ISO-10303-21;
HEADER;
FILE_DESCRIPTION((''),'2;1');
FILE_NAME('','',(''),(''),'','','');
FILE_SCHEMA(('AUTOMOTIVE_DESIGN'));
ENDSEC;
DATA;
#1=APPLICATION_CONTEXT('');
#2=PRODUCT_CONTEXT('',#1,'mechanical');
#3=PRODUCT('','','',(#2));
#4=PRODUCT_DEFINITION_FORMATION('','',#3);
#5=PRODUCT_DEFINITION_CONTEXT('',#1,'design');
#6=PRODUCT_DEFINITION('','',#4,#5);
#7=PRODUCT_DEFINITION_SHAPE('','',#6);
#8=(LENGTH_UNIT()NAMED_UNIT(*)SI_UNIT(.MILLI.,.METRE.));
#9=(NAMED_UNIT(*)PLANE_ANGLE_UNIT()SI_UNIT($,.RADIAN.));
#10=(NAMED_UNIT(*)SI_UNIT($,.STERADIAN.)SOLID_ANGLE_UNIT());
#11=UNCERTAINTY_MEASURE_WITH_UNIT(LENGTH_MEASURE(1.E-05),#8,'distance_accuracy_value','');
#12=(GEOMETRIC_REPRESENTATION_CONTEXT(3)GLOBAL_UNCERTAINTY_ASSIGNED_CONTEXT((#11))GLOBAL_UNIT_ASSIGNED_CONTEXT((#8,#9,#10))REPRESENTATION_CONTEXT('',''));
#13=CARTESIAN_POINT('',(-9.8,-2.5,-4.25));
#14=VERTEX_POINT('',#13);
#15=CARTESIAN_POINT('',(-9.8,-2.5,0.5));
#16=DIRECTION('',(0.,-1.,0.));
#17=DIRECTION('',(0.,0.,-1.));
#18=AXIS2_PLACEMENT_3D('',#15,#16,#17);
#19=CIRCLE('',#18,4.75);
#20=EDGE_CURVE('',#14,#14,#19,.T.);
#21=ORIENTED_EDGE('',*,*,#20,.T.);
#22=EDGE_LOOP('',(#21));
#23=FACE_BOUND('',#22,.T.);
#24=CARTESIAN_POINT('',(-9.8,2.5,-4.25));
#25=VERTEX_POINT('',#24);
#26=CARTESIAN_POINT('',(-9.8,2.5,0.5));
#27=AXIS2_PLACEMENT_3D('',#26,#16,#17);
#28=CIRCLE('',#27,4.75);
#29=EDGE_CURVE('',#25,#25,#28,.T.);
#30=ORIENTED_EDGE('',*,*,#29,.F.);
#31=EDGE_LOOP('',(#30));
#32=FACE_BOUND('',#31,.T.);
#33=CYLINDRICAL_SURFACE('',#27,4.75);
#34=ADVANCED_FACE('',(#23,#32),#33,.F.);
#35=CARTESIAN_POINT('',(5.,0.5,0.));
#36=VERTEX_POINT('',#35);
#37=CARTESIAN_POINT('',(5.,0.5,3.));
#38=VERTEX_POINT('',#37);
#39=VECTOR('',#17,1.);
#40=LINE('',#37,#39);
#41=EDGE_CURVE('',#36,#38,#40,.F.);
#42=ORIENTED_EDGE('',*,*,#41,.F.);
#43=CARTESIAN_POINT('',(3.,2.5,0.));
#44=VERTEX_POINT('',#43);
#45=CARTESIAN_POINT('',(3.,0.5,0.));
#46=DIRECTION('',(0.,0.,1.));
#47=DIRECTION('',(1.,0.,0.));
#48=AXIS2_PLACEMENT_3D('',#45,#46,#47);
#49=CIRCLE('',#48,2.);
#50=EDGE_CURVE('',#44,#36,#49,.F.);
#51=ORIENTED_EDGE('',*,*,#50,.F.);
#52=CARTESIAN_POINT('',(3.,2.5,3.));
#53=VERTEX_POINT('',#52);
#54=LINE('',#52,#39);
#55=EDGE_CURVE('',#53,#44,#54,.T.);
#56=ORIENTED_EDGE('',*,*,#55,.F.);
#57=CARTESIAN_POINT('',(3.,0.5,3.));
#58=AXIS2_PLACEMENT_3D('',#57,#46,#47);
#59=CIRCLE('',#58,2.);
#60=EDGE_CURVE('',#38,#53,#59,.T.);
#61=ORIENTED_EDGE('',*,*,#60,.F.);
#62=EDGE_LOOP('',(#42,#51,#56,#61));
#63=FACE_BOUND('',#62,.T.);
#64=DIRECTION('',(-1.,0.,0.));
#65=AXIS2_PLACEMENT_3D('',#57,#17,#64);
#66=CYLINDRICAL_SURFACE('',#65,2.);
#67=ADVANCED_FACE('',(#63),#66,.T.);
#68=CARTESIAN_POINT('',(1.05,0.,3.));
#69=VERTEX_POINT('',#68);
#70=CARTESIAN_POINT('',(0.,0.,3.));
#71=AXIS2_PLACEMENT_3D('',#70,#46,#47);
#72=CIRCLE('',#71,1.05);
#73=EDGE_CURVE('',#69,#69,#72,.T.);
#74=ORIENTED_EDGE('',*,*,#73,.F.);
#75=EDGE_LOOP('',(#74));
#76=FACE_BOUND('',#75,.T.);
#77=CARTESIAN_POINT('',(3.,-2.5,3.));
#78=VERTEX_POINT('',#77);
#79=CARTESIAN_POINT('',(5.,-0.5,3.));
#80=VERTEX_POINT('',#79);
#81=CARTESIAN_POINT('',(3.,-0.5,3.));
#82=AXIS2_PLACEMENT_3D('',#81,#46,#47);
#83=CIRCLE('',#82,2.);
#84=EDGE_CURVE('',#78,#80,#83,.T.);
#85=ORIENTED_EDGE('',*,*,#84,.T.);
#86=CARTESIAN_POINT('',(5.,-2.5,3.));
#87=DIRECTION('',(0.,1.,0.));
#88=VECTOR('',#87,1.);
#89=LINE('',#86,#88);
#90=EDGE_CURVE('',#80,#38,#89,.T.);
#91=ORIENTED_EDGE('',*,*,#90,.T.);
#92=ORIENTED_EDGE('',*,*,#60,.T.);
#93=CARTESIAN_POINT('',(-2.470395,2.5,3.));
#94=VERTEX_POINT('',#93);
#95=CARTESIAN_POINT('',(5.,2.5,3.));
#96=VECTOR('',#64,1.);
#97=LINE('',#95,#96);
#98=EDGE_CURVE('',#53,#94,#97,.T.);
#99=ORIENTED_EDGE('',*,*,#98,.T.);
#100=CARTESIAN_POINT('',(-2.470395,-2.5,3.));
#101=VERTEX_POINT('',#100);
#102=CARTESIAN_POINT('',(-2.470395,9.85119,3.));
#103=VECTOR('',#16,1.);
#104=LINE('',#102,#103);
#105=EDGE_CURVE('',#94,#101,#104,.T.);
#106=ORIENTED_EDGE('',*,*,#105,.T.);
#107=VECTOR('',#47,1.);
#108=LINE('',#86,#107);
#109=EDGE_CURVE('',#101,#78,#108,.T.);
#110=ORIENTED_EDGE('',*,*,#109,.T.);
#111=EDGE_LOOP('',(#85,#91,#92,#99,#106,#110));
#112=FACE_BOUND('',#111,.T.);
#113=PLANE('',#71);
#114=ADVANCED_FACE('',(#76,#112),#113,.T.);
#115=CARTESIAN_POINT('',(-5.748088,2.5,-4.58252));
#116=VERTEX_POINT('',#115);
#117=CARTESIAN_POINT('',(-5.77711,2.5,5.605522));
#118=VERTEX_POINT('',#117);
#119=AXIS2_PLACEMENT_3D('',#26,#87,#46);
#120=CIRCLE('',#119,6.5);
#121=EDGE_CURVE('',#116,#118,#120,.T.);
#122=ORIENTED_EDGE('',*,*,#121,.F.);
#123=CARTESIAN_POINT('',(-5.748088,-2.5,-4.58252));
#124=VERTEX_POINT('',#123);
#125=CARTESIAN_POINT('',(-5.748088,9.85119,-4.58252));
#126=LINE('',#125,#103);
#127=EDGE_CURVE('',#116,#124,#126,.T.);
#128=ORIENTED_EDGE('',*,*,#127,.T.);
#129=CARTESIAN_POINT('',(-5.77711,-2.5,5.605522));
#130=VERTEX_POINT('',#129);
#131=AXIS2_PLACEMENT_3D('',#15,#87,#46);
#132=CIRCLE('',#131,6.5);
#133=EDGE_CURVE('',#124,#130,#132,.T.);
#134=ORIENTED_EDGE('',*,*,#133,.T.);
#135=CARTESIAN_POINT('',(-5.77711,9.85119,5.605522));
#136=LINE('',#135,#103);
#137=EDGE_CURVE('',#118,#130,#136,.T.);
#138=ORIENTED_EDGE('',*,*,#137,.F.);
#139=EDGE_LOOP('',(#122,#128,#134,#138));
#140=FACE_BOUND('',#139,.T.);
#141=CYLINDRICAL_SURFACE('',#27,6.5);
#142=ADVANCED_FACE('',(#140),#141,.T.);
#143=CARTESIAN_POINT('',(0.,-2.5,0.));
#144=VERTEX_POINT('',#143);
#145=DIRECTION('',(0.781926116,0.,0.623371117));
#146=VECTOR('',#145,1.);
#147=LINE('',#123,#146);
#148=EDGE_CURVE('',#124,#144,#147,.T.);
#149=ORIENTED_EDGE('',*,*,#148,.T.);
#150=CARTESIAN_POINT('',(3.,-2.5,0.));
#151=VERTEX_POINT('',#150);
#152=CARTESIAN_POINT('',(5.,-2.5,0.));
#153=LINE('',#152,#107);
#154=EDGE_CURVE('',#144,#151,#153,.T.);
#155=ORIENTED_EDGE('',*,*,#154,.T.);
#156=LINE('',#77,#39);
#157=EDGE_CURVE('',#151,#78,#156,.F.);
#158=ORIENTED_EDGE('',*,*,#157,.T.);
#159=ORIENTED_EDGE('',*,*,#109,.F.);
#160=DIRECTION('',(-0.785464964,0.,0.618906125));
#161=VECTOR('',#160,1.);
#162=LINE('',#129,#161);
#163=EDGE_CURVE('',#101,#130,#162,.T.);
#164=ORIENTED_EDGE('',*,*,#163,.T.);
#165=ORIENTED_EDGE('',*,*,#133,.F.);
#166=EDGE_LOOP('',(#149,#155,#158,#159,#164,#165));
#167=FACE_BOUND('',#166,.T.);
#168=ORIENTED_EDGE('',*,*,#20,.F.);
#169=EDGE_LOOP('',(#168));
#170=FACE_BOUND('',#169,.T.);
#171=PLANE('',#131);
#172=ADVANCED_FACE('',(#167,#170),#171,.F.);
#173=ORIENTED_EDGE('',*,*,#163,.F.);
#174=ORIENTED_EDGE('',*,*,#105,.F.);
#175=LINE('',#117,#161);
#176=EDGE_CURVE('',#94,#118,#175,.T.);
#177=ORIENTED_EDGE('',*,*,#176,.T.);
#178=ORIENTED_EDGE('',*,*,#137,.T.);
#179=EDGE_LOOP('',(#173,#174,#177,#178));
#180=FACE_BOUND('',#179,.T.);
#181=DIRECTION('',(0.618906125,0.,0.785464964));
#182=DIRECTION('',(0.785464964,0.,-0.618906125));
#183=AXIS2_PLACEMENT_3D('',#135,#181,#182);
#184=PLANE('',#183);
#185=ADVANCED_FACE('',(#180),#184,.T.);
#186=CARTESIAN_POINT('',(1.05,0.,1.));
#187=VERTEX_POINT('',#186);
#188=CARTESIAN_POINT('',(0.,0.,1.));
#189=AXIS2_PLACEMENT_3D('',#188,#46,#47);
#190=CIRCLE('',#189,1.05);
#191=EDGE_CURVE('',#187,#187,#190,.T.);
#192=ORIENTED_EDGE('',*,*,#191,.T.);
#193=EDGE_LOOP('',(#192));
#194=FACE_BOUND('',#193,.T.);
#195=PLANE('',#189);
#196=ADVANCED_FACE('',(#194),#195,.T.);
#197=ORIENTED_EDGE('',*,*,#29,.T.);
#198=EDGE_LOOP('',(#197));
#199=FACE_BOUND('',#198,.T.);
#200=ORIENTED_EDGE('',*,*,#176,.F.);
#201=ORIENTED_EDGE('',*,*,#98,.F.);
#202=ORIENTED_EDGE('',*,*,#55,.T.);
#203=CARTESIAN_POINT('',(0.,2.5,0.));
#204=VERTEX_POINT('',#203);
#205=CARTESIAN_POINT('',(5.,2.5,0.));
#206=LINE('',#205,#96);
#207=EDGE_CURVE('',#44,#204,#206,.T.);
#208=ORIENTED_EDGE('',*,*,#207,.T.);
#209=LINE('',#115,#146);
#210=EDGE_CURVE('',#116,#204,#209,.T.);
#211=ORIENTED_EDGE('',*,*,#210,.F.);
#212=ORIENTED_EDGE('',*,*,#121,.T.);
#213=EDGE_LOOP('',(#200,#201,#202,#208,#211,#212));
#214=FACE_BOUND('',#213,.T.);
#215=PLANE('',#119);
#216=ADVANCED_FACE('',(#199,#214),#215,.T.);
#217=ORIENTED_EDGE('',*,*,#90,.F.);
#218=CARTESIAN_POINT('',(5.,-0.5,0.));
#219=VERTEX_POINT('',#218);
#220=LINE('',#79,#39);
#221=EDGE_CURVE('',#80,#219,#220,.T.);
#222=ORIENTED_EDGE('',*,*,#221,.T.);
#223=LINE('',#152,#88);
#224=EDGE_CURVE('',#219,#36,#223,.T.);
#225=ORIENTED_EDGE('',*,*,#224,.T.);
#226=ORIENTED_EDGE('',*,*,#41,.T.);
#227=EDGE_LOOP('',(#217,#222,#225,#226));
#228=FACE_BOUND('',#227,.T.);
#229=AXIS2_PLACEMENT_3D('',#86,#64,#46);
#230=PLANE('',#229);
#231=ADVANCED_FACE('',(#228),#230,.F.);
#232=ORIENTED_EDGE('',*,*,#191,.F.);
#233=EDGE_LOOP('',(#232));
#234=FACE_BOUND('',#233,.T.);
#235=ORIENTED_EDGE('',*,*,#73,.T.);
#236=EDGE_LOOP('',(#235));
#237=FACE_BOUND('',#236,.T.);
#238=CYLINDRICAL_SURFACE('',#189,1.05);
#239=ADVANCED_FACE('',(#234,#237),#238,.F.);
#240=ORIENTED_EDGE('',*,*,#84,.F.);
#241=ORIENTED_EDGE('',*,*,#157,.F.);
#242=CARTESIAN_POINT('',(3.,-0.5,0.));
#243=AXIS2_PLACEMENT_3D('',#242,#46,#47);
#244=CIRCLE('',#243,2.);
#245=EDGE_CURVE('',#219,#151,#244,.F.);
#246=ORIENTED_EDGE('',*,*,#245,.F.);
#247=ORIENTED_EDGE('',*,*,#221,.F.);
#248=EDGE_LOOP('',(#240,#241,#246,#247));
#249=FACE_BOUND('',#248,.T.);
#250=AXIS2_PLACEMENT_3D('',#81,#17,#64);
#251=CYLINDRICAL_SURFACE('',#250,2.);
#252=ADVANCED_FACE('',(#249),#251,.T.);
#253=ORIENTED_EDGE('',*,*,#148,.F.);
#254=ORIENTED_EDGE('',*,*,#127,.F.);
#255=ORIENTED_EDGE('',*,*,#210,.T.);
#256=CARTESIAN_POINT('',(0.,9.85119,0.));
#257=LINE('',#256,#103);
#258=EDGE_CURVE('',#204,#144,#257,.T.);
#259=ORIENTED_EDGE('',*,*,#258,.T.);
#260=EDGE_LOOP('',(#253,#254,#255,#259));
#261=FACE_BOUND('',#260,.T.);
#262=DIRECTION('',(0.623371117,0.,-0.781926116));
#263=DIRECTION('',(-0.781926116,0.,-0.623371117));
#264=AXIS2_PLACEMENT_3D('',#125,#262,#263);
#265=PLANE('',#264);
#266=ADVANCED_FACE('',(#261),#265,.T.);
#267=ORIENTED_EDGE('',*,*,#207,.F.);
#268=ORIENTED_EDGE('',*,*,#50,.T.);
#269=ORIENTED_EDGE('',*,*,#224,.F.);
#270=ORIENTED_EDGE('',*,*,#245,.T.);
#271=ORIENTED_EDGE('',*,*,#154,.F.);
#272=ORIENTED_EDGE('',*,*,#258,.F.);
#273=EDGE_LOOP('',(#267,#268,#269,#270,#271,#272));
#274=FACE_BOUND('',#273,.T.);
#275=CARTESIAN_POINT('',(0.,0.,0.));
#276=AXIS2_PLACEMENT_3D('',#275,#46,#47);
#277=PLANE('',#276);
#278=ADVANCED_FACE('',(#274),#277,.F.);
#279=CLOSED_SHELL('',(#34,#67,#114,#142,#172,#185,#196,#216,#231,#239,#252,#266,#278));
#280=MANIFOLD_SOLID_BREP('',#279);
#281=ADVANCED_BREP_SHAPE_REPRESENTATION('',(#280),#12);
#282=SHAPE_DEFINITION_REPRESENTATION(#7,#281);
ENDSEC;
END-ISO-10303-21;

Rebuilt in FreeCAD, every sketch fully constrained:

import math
import FreeCAD as App
import Part
import Sketcher
from FreeCAD import Vector


def edges_at(feature, points):
    """Names of the edges that pass closest to the given points."""
    edges = feature.Shape.Edges
    near = lambda p: min(range(len(edges)), key=lambda i: edges[i].distToShape(Part.Vertex(*p))[0])
    return sorted({f"Edge{near(p) + 1}" for p in points})

doc = App.newDocument("Part")
body = doc.addObject("PartDesign::Body", "Body")

# Sketch on XY plane
sketch1 = body.newObject("Sketcher::SketchObject", "Sketch")
sketch1.AttachmentSupport = (doc.getObject("XY_Plane"), [""])
sketch1.MapMode = "FlatFace"
sketch1.addGeometry(Part.LineSegment(Vector(-5, 2, 0), Vector(-5, -2, 0)), False)
sketch1.addGeometry(Part.LineSegment(Vector(-5, -2, 0), Vector(5, -2, 0)), False)
sketch1.addGeometry(Part.LineSegment(Vector(5, -2, 0), Vector(5, 2, 0)), False)
sketch1.addGeometry(Part.LineSegment(Vector(5, 2, 0), Vector(-5, 2, 0)), False)
sketch1.addConstraint(Sketcher.Constraint("Coincident", 0, 2, 1, 1))
sketch1.addConstraint(Sketcher.Constraint("Coincident", 1, 2, 2, 1))
sketch1.addConstraint(Sketcher.Constraint("Coincident", 2, 2, 3, 1))
sketch1.addConstraint(Sketcher.Constraint("Coincident", 3, 2, 0, 1))
sketch1.addConstraint(Sketcher.Constraint("Vertical", 0))
sketch1.addConstraint(Sketcher.Constraint("Horizontal", 1))
sketch1.addConstraint(Sketcher.Constraint("Vertical", 2))
sketch1.addConstraint(Sketcher.Constraint("Horizontal", 3))
sketch1.addConstraint(Sketcher.Constraint("Symmetric", 0, 2, 2, 2, -1, 1))
sketch1.addConstraint(Sketcher.Constraint("DistanceX", 1, 1, 1, 2, 10.0))
sketch1.addConstraint(Sketcher.Constraint("DistanceY", 0, 2, 0, 1, 5.0))
pad1 = body.newObject("PartDesign::Pad", "Pad")
pad1.Profile = sketch1
pad1.Length = 3
doc.recompute()

fillet = body.newObject("PartDesign::Fillet", "Fillet")
fillet.Base = (pad1, edges_at(pad1, [(5, 2.5, 1.5), (5, -2.5, 1.5)]))
fillet.Radius = 2

# Sketch on XY plane
sketch2 = body.newObject("Sketcher::SketchObject", "Sketch001")
sketch2.AttachmentSupport = (doc.getObject("XY_Plane"), [""])
sketch2.MapMode = "FlatFace"
sketch2.AttachmentOffset = App.Placement(Vector(0, 0, 3), App.Rotation())
sketch2.addGeometry(Part.Circle(Vector(0, 0, 0), Vector(0, 0, 1), 1.1), False)
sketch2.addConstraint(Sketcher.Constraint("Coincident", 0, 3, -1, 1))
sketch2.addConstraint(Sketcher.Constraint("Diameter", 0, 2.1))
pocket1 = body.newObject("PartDesign::Pocket", "Pocket")
pocket1.Profile = sketch2
pocket1.Length = 2
body2 = doc.addObject("PartDesign::Body", "Body001")

# Sketch on XZ plane
sketch3 = body2.newObject("Sketcher::SketchObject", "Sketch002")
sketch3.AttachmentSupport = (doc.getObject("XZ_Plane001"), [""])
sketch3.MapMode = "FlatFace"
sketch3.addGeometry(Part.Circle(Vector(-10, 0, 0), Vector(0, 0, 1), 6), False)
sketch3.addConstraint(Sketcher.Constraint("Diameter", 0, 13.0))
sketch3.addConstraint(Sketcher.Constraint("DistanceX", 0, 3, -1, 1, 9.8))
sketch3.addConstraint(Sketcher.Constraint("DistanceY", -1, 1, 0, 3, 0.5))
pad2 = body2.newObject("PartDesign::Pad", "Pad001")
pad2.Profile = sketch3
pad2.Length = 5
pad2.Midplane = True

# Sketch on XZ plane
sketch4 = body2.newObject("Sketcher::SketchObject", "Sketch003")
sketch4.AttachmentSupport = (doc.getObject("XZ_Plane001"), [""])
sketch4.MapMode = "FlatFace"
sketch4.AttachmentOffset = App.Placement(Vector(0, 0, 2.5), App.Rotation())
sketch4.addGeometry(Part.Circle(Vector(-9.8, 0.5, 0), Vector(0, 0, 1), 4.8), False)
sketch4.addConstraint(Sketcher.Constraint("Diameter", 0, 9.5))
sketch4.addConstraint(Sketcher.Constraint("DistanceX", 0, 3, -1, 1, 9.8))
sketch4.addConstraint(Sketcher.Constraint("DistanceY", -1, 1, 0, 3, 0.5))
pocket2 = body2.newObject("PartDesign::Pocket", "Pocket001")
pocket2.Profile = sketch4
pocket2.Type = "ThroughAll"
doc.recompute()

boolean = body.newObject("PartDesign::Boolean", "Boolean")
boolean.Type = "Fuse"
boolean.addObjects([body2])

# Sketch on XZ plane
sketch5 = body.newObject("Sketcher::SketchObject", "Sketch004")
sketch5.AttachmentSupport = (doc.getObject("XZ_Plane"), [""])
sketch5.MapMode = "FlatFace"
sketch5.AttachmentOffset = App.Placement(Vector(0, 0, 2.5), App.Rotation())
sketch5.addGeometry(Part.LineSegment(Vector(-2.5, 3, 0), Vector(-5.8, 5.6, 0)), False)
sketch5.addGeometry(Part.ArcOfCircle(Part.Circle(Vector(-9.8, 0.5, 0), Vector(0, 0, 1), 6.5), math.radians(23), math.radians(52)), False)
sketch5.addGeometry(Part.LineSegment(Vector(-3.8, 3, 0), Vector(-2.5, 3, 0)), False)
sketch5.addGeometry(Part.LineSegment(Vector(-5.7, -4.6, 0), Vector(0, 0, 0)), False)
sketch5.addGeometry(Part.LineSegment(Vector(0, 0, 0), Vector(-3.3, 0, 0)), False)
sketch5.addGeometry(Part.ArcOfCircle(Part.Circle(Vector(-9.8, 0.5, 0), Vector(0, 0, 1), 6.5), math.radians(-51), math.radians(-4)), False)
sketch5.addConstraint(Sketcher.Constraint("Tangent", 0, 2, 1, 2))
sketch5.addConstraint(Sketcher.Constraint("Coincident", 1, 1, 2, 1))
sketch5.addConstraint(Sketcher.Constraint("Coincident", 2, 2, 0, 1))
sketch5.addConstraint(Sketcher.Constraint("Coincident", 3, 2, 4, 1))
sketch5.addConstraint(Sketcher.Constraint("Coincident", 4, 2, 5, 2))
sketch5.addConstraint(Sketcher.Constraint("Tangent", 5, 1, 3, 1))
sketch5.addConstraint(Sketcher.Constraint("Horizontal", 2))
sketch5.addConstraint(Sketcher.Constraint("Horizontal", 4))
sketch5.addConstraint(Sketcher.Constraint("Coincident", 3, 2, -1, 1))
sketch5.addConstraint(Sketcher.Constraint("Coincident", 5, 3, 1, 3))
sketch5.addConstraint(Sketcher.Constraint("Equal", 1, 5))
sketch5.addConstraint(Sketcher.Constraint("Radius", 1, 6.5))
sketch5.addConstraint(Sketcher.Constraint("DistanceY", -1, 1, 1, 1, 3.0))
sketch5.addConstraint(Sketcher.Constraint("DistanceX", 5, 3, 1, 1, 6.0))
sketch5.addConstraint(Sketcher.Constraint("DistanceX", 1, 3, -1, 1, 9.8))
sketch5.addConstraint(Sketcher.Constraint("DistanceX", 2, 1, 2, 2, 1.329605))
pad3 = body.newObject("PartDesign::Pad", "Pad002")
pad3.Profile = sketch5
pad3.Length = 5
pad3.Reversed = True

doc.recompute()
